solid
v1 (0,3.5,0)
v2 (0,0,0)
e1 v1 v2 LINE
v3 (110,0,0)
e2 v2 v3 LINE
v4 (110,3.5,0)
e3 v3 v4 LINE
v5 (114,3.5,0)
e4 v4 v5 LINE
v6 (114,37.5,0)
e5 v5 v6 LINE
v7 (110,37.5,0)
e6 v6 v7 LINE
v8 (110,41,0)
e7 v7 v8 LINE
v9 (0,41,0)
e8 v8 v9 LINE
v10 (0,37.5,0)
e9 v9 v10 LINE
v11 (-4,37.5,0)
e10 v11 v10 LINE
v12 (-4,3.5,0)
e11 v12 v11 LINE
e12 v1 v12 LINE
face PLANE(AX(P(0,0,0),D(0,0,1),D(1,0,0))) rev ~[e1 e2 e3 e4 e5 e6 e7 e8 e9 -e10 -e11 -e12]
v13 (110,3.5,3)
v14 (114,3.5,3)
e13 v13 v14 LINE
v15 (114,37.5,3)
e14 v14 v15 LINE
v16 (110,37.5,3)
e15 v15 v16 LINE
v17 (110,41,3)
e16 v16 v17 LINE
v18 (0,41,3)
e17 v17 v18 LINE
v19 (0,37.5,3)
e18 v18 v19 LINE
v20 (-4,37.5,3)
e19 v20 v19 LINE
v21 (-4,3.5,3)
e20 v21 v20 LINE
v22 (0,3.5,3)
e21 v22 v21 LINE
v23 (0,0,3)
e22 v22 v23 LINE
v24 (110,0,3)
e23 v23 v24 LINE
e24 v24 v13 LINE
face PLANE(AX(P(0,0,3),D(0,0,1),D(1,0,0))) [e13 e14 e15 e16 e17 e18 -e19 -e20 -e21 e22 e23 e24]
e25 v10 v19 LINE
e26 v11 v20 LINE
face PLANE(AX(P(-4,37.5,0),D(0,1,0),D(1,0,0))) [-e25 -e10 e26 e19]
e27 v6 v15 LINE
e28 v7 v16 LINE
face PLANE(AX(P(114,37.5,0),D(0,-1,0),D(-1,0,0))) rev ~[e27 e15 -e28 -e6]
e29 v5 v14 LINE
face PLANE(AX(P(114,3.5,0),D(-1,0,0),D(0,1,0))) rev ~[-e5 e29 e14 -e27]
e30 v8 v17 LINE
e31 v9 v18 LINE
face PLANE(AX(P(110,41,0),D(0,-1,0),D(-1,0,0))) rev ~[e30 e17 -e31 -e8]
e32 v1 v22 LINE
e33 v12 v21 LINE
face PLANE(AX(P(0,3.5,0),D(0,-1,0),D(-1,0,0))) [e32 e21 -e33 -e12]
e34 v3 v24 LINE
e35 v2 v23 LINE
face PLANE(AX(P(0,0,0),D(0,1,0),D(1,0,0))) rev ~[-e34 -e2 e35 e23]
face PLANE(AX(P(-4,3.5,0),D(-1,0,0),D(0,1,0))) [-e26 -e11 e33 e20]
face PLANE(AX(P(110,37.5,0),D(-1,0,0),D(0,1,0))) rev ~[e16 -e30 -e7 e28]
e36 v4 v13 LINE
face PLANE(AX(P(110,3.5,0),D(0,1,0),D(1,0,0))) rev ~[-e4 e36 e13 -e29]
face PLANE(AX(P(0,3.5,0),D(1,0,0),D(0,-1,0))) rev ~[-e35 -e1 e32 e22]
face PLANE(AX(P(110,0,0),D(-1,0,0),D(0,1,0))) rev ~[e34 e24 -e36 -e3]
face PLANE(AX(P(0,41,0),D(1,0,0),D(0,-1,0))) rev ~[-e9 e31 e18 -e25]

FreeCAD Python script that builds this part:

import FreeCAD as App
import Part
import Sketcher
from FreeCAD import Vector

doc = App.newDocument("Part")
params = doc.addObject("Spreadsheet::Sheet", "Params")
for row, (alias, value) in enumerate([
    ("sketch1_width", "110 mm"),
    ("sketch1_width2", "4 mm"),
    ("sketch1_height", "34 mm"),
    ("pad1_length", "3 mm"),
], start=1):
    params.set(f"A{row}", alias)
    params.set(f"B{row}", "=" + value)
    params.setAlias(f"B{row}", alias)

body = doc.addObject("PartDesign::Body", "Body")

# Sketch on XY plane
sketch1 = doc.addObject("Sketcher::SketchObject", "Sketch")
body.addObject(sketch1)
sketch1.AttachmentSupport = (doc.XY_Plane, [""])
sketch1.MapMode = "FlatFace"
sketch1.addGeometry([
    Part.LineSegment(Vector(0, 3.5, 0), Vector(0, 0, 0)),  # 0
    Part.LineSegment(Vector(0, 0, 0), Vector(110, 0, 0)),  # 1
    Part.LineSegment(Vector(110, 0, 0), Vector(110, 3.5, 0)),  # 2
    Part.LineSegment(Vector(110, 3.5, 0), Vector(114, 3.5, 0)),  # 3
    Part.LineSegment(Vector(114, 3.5, 0), Vector(114, 37.5, 0)),  # 4
    Part.LineSegment(Vector(114, 37.5, 0), Vector(110, 37.5, 0)),  # 5
    Part.LineSegment(Vector(110, 37.5, 0), Vector(110, 41, 0)),  # 6
    Part.LineSegment(Vector(110, 41, 0), Vector(0, 41, 0)),  # 7
    Part.LineSegment(Vector(0, 41, 0), Vector(0, 37.5, 0)),  # 8
    Part.LineSegment(Vector(0, 37.5, 0), Vector(-4, 37.5, 0)),  # 9
    Part.LineSegment(Vector(-4, 37.5, 0), Vector(-4, 3.5, 0)),  # 10
    Part.LineSegment(Vector(-4, 3.5, 0), Vector(0, 3.5, 0)),  # 11
], False)
sketch1.addConstraint([
    Sketcher.Constraint("Coincident", 0, 2, 1, 1),
    Sketcher.Constraint("Coincident", 1, 2, 2, 1),
    Sketcher.Constraint("Coincident", 2, 2, 3, 1),
    Sketcher.Constraint("Coincident", 3, 2, 4, 1),
    Sketcher.Constraint("Coincident", 4, 2, 5, 1),
    Sketcher.Constraint("Coincident", 5, 2, 6, 1),
    Sketcher.Constraint("Coincident", 6, 2, 7, 1),
    Sketcher.Constraint("Coincident", 7, 2, 8, 1),
    Sketcher.Constraint("Coincident", 8, 2, 9, 1),
    Sketcher.Constraint("Coincident", 9, 2, 10, 1),
    Sketcher.Constraint("Coincident", 10, 2, 11, 1),
    Sketcher.Constraint("Coincident", 11, 2, 0, 1),
    Sketcher.Constraint("Vertical", 0),
    Sketcher.Constraint("Horizontal", 1),
    Sketcher.Constraint("Vertical", 2),
    Sketcher.Constraint("Horizontal", 3),
    Sketcher.Constraint("Vertical", 4),
    Sketcher.Constraint("Horizontal", 5),
    Sketcher.Constraint("Vertical", 6),
    Sketcher.Constraint("Horizontal", 7),
    Sketcher.Constraint("Vertical", 8),
    Sketcher.Constraint("Horizontal", 9),
    Sketcher.Constraint("Vertical", 10),
    Sketcher.Constraint("Horizontal", 11),
    Sketcher.Constraint("Coincident", 0, 2, -1, 1),
    Sketcher.Constraint("PointOnObject", 7, 2, -2),
    Sketcher.Constraint("Horizontal", 5, 2, 8, 2),
    Sketcher.Constraint("Horizontal", 3, 2, 10, 2),
    Sketcher.Constraint("Vertical", 2, 2, 5, 2),
    Sketcher.Constraint("Equal", 5, 9),
    Sketcher.Constraint("Equal", 2, 6),
    Sketcher.Constraint("DistanceX", 1, 1, 1, 2, 110.0),
    Sketcher.Constraint("DistanceX", 3, 1, 3, 2, 4.0),
    Sketcher.Constraint("DistanceY", 4, 1, 4, 2, 34.0),
    Sketcher.Constraint("DistanceY", -1, 1, 6, 2, 41.0),
])
sketch1.setExpression("Constraints[31]", "Params.sketch1_width")
sketch1.setExpression("Constraints[32]", "Params.sketch1_width2")
sketch1.setExpression("Constraints[33]", "Params.sketch1_height")
pad1 = doc.addObject("PartDesign::Pad", "Pad")
body.addObject(pad1)
pad1.Profile = sketch1
pad1.setExpression("Length", "Params.pad1_length")

doc.recompute()
